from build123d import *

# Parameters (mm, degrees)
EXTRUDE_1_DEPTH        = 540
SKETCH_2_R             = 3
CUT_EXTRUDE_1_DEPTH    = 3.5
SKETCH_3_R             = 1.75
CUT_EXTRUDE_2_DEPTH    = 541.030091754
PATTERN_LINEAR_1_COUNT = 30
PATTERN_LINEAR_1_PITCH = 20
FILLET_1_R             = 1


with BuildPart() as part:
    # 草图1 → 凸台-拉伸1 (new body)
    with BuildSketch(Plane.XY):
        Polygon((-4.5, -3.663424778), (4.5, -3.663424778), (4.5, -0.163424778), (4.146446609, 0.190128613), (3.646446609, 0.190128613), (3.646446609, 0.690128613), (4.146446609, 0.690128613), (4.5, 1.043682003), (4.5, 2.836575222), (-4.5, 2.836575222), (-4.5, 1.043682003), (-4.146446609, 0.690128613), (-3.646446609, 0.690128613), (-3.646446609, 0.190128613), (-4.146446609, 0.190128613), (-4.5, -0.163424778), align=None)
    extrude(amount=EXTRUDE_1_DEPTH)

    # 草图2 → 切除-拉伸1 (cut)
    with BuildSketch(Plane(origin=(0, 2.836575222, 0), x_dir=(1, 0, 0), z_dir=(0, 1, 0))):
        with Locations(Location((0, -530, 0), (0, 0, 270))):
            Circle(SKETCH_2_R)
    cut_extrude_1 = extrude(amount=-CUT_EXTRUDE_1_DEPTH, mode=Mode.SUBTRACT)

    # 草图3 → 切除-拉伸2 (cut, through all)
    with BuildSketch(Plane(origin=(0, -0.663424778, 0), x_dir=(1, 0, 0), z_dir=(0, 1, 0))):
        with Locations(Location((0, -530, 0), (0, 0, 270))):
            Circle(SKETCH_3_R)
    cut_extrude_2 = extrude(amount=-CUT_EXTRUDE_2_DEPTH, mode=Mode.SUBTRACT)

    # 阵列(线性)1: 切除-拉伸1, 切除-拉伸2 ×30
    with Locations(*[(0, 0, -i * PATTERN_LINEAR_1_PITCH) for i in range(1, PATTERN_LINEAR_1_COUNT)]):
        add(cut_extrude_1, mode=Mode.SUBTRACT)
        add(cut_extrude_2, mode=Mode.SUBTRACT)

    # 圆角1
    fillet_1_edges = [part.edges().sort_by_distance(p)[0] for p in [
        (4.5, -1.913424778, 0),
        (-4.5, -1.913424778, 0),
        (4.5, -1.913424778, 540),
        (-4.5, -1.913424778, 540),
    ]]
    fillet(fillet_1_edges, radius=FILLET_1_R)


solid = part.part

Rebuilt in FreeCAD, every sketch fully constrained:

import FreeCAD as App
import Part
import Sketcher
from FreeCAD import Vector


def edges_at(feature, points):
    """Names of the edges that pass closest to the given points."""
    edges = feature.Shape.Edges
    near = lambda p: min(range(len(edges)), key=lambda i: edges[i].distToShape(Part.Vertex(*p))[0])
    return sorted({f"Edge{near(p) + 1}" for p in points})

doc = App.newDocument("Part")
params = doc.addObject("Spreadsheet::Sheet", "Params")
for row, (alias, value) in enumerate([
    ("sketch1_width", "9 mm"),
    ("sketch1_width2", "0.5 mm"),
    ("sketch1_height", "3.5 mm"),
    ("sketch1_length", "0.5 mm"),
    ("pad1_length", "540 mm"),
    ("sketch2_diameter", "6 mm"),
    ("pocket1_length", "3.5 mm"),
    ("sketch3_diameter", "3.5 mm"),
    ("linearpattern_pitch", "20 mm"),
    ("fillet_radius", "1 mm"),
], start=1):
    params.set(f"A{row}", alias)
    params.set(f"B{row}", "=" + value)
    params.setAlias(f"B{row}", alias)

body = doc.addObject("PartDesign::Body", "Body")

sketch1 = body.newObject("Sketcher::SketchObject", "Sketch")
sketch1.AttachmentSupport = (doc.getObject("XY_Plane"), [""])
sketch1.MapMode = "FlatFace"
sketch1.addGeometry([
    Part.LineSegment(Vector(-4.5, -3.66, 0), Vector(4.5, -3.66, 0)),
    Part.LineSegment(Vector(4.5, -3.66, 0), Vector(4.5, -0.16, 0)),
    Part.LineSegment(Vector(4.5, -0.16, 0), Vector(4.15, 0.19, 0)),
    Part.LineSegment(Vector(4.15, 0.19, 0), Vector(3.65, 0.19, 0)),
    Part.LineSegment(Vector(3.65, 0.19, 0), Vector(3.65, 0.69, 0)),
    Part.LineSegment(Vector(3.65, 0.69, 0), Vector(4.15, 0.69, 0)),
    Part.LineSegment(Vector(4.15, 0.69, 0), Vector(4.5, 1.04, 0)),
    Part.LineSegment(Vector(4.5, 1.04, 0), Vector(4.5, 2.84, 0)),
    Part.LineSegment(Vector(4.5, 2.84, 0), Vector(-4.5, 2.84, 0)),
    Part.LineSegment(Vector(-4.5, 2.84, 0), Vector(-4.5, 1.04, 0)),
    Part.LineSegment(Vector(-4.5, 1.04, 0), Vector(-4.15, 0.69, 0)),
    Part.LineSegment(Vector(-4.15, 0.69, 0), Vector(-3.65, 0.69, 0)),
    Part.LineSegment(Vector(-3.65, 0.69, 0), Vector(-3.65, 0.19, 0)),
    Part.LineSegment(Vector(-3.65, 0.19, 0), Vector(-4.15, 0.19, 0)),
    Part.LineSegment(Vector(-4.15, 0.19, 0), Vector(-4.5, -0.16, 0)),
    Part.LineSegment(Vector(-4.5, -0.16, 0), Vector(-4.5, -3.66, 0)),
], False)
sketch1.addConstraint([
    Sketcher.Constraint("Coincident", 0, 2, 1, 1),
    Sketcher.Constraint("Coincident", 1, 2, 2, 1),
    Sketcher.Constraint("Coincident", 2, 2, 3, 1),
    Sketcher.Constraint("Coincident", 3, 2, 4, 1),
    Sketcher.Constraint("Coincident", 4, 2, 5, 1),
    Sketcher.Constraint("Coincident", 5, 2, 6, 1),
    Sketcher.Constraint("Coincident", 6, 2, 7, 1),
    Sketcher.Constraint("Coincident", 7, 2, 8, 1),
    Sketcher.Constraint("Coincident", 8, 2, 9, 1),
    Sketcher.Constraint("Coincident", 9, 2, 10, 1),
    Sketcher.Constraint("Coincident", 10, 2, 11, 1),
    Sketcher.Constraint("Coincident", 11, 2, 12, 1),
    Sketcher.Constraint("Coincident", 12, 2, 13, 1),
    Sketcher.Constraint("Coincident", 13, 2, 14, 1),
    Sketcher.Constraint("Coincident", 14, 2, 15, 1),
    Sketcher.Constraint("Coincident", 15, 2, 0, 1),
    Sketcher.Constraint("Horizontal", 0),
    Sketcher.Constraint("Vertical", 1),
    Sketcher.Constraint("Horizontal", 3),
    Sketcher.Constraint("Vertical", 4),
    Sketcher.Constraint("Horizontal", 5),
    Sketcher.Constraint("Vertical", 7),
    Sketcher.Constraint("Horizontal", 8),
    Sketcher.Constraint("Vertical", 9),
    Sketcher.Constraint("Horizontal", 11),
    Sketcher.Constraint("Vertical", 12),
    Sketcher.Constraint("Horizontal", 13),
    Sketcher.Constraint("Vertical", 15),
    Sketcher.Constraint("Symmetric", 6, 2, 9, 2, -2),
    Sketcher.Constraint("Symmetric", 5, 2, 10, 2, -2),
    Sketcher.Constraint("Symmetric", 3, 2, 12, 2, -2),
    Sketcher.Constraint("Symmetric", 1, 2, 14, 2, -2),
    Sketcher.Constraint("Perpendicular", 2, 6),
    Sketcher.Constraint("Perpendicular", 6, 10),
    Sketcher.Constraint("Perpendicular", 10, 14),
    Sketcher.Constraint("Vertical", 2, 2, 5, 2),
    Sketcher.Constraint("Vertical", 1, 2, 6, 2),
    Sketcher.Constraint("Equal", 13, 4),
    Sketcher.Constraint("DistanceX", 0, 1, 0, 2, 9.0),
    Sketcher.Constraint("DistanceX", 3, 2, 3, 1, 0.5),
    Sketcher.Constraint("DistanceY", 1, 1, 1, 2, 3.5),
    Sketcher.Constraint("Distance", 2, 0.5),
    Sketcher.Constraint("DistanceY", 7, 1, 7, 2, 1.792893),
    Sketcher.Constraint("DistanceY", -1, 1, 2, 2, 0.190129),
])
sketch1.setExpression("Constraints[38]", "Params.sketch1_width")
sketch1.setExpression("Constraints[39]", "Params.sketch1_width2")
sketch1.setExpression("Constraints[40]", "Params.sketch1_height")
sketch1.setExpression("Constraints[41]", "Params.sketch1_length")
pad1 = body.newObject("PartDesign::Pad", "Pad")
pad1.Profile = sketch1
pad1.setExpression("Length", "Params.pad1_length")

sketch2 = body.newObject("Sketcher::SketchObject", "Sketch001")
sketch2.AttachmentSupport = (doc.getObject("XZ_Plane"), [""])
sketch2.MapMode = "FlatFace"
sketch2.AttachmentOffset = App.Placement(Vector(0, 0, -2.836575), App.Rotation())
sketch2.addGeometry(Part.Circle(Vector(0, 530, 0), Vector(0, 0, 1), 3), False)
sketch2.addConstraint([
    Sketcher.Constraint("PointOnObject", 0, 3, -2),
    Sketcher.Constraint("Diameter", 0, 6.0),
    Sketcher.Constraint("DistanceY", -1, 1, 0, 3, 530.0),
])
sketch2.setExpression("Constraints[1]", "Params.sketch2_diameter")
pocket1 = body.newObject("PartDesign::Pocket", "Pocket")
pocket1.Profile = sketch2
pocket1.setExpression("Length", "Params.pocket1_length")
pocket1.Reversed = True

sketch3 = body.newObject("Sketcher::SketchObject", "Sketch002")
sketch3.AttachmentSupport = (doc.getObject("XZ_Plane"), [""])
sketch3.MapMode = "FlatFace"
sketch3.AttachmentOffset = App.Placement(Vector(0, 0, 0.663425), App.Rotation())
sketch3.addGeometry(Part.Circle(Vector(0, 530, 0), Vector(0, 0, 1), 1.8), False)
sketch3.addConstraint([
    Sketcher.Constraint("PointOnObject", 0, 3, -2),
    Sketcher.Constraint("Diameter", 0, 3.5),
    Sketcher.Constraint("DistanceY", -1, 1, 0, 3, 530.0),
])
sketch3.setExpression("Constraints[1]", "Params.sketch3_diameter")
pocket2 = body.newObject("PartDesign::Pocket", "Pocket001")
pocket2.Profile = sketch3
pocket2.Type = "ThroughAll"
pocket2.Reversed = True
doc.recompute()

linearpattern = body.newObject("PartDesign::LinearPattern", "LinearPattern")
linearpattern.Originals = [pocket1, pocket2]
linearpattern.Direction = (doc.getObject("Z_Axis"), [""])
linearpattern.Mode = "offset"
linearpattern.setExpression("Offset", "Params.linearpattern_pitch")
linearpattern.Occurrences = 30
linearpattern.Reversed = True
body.Tip = linearpattern
doc.recompute()

fillet = body.newObject("PartDesign::Fillet", "Fillet")
fillet.Base = (linearpattern, edges_at(linearpattern, [
    (4.5, -1.913, 0),
    (-4.5, -1.913, 0),
    (4.5, -1.913, 540),
    (-4.5, -1.913, 540),
]))
fillet.setExpression("Radius", "Params.fillet_radius")

doc.recompute()
